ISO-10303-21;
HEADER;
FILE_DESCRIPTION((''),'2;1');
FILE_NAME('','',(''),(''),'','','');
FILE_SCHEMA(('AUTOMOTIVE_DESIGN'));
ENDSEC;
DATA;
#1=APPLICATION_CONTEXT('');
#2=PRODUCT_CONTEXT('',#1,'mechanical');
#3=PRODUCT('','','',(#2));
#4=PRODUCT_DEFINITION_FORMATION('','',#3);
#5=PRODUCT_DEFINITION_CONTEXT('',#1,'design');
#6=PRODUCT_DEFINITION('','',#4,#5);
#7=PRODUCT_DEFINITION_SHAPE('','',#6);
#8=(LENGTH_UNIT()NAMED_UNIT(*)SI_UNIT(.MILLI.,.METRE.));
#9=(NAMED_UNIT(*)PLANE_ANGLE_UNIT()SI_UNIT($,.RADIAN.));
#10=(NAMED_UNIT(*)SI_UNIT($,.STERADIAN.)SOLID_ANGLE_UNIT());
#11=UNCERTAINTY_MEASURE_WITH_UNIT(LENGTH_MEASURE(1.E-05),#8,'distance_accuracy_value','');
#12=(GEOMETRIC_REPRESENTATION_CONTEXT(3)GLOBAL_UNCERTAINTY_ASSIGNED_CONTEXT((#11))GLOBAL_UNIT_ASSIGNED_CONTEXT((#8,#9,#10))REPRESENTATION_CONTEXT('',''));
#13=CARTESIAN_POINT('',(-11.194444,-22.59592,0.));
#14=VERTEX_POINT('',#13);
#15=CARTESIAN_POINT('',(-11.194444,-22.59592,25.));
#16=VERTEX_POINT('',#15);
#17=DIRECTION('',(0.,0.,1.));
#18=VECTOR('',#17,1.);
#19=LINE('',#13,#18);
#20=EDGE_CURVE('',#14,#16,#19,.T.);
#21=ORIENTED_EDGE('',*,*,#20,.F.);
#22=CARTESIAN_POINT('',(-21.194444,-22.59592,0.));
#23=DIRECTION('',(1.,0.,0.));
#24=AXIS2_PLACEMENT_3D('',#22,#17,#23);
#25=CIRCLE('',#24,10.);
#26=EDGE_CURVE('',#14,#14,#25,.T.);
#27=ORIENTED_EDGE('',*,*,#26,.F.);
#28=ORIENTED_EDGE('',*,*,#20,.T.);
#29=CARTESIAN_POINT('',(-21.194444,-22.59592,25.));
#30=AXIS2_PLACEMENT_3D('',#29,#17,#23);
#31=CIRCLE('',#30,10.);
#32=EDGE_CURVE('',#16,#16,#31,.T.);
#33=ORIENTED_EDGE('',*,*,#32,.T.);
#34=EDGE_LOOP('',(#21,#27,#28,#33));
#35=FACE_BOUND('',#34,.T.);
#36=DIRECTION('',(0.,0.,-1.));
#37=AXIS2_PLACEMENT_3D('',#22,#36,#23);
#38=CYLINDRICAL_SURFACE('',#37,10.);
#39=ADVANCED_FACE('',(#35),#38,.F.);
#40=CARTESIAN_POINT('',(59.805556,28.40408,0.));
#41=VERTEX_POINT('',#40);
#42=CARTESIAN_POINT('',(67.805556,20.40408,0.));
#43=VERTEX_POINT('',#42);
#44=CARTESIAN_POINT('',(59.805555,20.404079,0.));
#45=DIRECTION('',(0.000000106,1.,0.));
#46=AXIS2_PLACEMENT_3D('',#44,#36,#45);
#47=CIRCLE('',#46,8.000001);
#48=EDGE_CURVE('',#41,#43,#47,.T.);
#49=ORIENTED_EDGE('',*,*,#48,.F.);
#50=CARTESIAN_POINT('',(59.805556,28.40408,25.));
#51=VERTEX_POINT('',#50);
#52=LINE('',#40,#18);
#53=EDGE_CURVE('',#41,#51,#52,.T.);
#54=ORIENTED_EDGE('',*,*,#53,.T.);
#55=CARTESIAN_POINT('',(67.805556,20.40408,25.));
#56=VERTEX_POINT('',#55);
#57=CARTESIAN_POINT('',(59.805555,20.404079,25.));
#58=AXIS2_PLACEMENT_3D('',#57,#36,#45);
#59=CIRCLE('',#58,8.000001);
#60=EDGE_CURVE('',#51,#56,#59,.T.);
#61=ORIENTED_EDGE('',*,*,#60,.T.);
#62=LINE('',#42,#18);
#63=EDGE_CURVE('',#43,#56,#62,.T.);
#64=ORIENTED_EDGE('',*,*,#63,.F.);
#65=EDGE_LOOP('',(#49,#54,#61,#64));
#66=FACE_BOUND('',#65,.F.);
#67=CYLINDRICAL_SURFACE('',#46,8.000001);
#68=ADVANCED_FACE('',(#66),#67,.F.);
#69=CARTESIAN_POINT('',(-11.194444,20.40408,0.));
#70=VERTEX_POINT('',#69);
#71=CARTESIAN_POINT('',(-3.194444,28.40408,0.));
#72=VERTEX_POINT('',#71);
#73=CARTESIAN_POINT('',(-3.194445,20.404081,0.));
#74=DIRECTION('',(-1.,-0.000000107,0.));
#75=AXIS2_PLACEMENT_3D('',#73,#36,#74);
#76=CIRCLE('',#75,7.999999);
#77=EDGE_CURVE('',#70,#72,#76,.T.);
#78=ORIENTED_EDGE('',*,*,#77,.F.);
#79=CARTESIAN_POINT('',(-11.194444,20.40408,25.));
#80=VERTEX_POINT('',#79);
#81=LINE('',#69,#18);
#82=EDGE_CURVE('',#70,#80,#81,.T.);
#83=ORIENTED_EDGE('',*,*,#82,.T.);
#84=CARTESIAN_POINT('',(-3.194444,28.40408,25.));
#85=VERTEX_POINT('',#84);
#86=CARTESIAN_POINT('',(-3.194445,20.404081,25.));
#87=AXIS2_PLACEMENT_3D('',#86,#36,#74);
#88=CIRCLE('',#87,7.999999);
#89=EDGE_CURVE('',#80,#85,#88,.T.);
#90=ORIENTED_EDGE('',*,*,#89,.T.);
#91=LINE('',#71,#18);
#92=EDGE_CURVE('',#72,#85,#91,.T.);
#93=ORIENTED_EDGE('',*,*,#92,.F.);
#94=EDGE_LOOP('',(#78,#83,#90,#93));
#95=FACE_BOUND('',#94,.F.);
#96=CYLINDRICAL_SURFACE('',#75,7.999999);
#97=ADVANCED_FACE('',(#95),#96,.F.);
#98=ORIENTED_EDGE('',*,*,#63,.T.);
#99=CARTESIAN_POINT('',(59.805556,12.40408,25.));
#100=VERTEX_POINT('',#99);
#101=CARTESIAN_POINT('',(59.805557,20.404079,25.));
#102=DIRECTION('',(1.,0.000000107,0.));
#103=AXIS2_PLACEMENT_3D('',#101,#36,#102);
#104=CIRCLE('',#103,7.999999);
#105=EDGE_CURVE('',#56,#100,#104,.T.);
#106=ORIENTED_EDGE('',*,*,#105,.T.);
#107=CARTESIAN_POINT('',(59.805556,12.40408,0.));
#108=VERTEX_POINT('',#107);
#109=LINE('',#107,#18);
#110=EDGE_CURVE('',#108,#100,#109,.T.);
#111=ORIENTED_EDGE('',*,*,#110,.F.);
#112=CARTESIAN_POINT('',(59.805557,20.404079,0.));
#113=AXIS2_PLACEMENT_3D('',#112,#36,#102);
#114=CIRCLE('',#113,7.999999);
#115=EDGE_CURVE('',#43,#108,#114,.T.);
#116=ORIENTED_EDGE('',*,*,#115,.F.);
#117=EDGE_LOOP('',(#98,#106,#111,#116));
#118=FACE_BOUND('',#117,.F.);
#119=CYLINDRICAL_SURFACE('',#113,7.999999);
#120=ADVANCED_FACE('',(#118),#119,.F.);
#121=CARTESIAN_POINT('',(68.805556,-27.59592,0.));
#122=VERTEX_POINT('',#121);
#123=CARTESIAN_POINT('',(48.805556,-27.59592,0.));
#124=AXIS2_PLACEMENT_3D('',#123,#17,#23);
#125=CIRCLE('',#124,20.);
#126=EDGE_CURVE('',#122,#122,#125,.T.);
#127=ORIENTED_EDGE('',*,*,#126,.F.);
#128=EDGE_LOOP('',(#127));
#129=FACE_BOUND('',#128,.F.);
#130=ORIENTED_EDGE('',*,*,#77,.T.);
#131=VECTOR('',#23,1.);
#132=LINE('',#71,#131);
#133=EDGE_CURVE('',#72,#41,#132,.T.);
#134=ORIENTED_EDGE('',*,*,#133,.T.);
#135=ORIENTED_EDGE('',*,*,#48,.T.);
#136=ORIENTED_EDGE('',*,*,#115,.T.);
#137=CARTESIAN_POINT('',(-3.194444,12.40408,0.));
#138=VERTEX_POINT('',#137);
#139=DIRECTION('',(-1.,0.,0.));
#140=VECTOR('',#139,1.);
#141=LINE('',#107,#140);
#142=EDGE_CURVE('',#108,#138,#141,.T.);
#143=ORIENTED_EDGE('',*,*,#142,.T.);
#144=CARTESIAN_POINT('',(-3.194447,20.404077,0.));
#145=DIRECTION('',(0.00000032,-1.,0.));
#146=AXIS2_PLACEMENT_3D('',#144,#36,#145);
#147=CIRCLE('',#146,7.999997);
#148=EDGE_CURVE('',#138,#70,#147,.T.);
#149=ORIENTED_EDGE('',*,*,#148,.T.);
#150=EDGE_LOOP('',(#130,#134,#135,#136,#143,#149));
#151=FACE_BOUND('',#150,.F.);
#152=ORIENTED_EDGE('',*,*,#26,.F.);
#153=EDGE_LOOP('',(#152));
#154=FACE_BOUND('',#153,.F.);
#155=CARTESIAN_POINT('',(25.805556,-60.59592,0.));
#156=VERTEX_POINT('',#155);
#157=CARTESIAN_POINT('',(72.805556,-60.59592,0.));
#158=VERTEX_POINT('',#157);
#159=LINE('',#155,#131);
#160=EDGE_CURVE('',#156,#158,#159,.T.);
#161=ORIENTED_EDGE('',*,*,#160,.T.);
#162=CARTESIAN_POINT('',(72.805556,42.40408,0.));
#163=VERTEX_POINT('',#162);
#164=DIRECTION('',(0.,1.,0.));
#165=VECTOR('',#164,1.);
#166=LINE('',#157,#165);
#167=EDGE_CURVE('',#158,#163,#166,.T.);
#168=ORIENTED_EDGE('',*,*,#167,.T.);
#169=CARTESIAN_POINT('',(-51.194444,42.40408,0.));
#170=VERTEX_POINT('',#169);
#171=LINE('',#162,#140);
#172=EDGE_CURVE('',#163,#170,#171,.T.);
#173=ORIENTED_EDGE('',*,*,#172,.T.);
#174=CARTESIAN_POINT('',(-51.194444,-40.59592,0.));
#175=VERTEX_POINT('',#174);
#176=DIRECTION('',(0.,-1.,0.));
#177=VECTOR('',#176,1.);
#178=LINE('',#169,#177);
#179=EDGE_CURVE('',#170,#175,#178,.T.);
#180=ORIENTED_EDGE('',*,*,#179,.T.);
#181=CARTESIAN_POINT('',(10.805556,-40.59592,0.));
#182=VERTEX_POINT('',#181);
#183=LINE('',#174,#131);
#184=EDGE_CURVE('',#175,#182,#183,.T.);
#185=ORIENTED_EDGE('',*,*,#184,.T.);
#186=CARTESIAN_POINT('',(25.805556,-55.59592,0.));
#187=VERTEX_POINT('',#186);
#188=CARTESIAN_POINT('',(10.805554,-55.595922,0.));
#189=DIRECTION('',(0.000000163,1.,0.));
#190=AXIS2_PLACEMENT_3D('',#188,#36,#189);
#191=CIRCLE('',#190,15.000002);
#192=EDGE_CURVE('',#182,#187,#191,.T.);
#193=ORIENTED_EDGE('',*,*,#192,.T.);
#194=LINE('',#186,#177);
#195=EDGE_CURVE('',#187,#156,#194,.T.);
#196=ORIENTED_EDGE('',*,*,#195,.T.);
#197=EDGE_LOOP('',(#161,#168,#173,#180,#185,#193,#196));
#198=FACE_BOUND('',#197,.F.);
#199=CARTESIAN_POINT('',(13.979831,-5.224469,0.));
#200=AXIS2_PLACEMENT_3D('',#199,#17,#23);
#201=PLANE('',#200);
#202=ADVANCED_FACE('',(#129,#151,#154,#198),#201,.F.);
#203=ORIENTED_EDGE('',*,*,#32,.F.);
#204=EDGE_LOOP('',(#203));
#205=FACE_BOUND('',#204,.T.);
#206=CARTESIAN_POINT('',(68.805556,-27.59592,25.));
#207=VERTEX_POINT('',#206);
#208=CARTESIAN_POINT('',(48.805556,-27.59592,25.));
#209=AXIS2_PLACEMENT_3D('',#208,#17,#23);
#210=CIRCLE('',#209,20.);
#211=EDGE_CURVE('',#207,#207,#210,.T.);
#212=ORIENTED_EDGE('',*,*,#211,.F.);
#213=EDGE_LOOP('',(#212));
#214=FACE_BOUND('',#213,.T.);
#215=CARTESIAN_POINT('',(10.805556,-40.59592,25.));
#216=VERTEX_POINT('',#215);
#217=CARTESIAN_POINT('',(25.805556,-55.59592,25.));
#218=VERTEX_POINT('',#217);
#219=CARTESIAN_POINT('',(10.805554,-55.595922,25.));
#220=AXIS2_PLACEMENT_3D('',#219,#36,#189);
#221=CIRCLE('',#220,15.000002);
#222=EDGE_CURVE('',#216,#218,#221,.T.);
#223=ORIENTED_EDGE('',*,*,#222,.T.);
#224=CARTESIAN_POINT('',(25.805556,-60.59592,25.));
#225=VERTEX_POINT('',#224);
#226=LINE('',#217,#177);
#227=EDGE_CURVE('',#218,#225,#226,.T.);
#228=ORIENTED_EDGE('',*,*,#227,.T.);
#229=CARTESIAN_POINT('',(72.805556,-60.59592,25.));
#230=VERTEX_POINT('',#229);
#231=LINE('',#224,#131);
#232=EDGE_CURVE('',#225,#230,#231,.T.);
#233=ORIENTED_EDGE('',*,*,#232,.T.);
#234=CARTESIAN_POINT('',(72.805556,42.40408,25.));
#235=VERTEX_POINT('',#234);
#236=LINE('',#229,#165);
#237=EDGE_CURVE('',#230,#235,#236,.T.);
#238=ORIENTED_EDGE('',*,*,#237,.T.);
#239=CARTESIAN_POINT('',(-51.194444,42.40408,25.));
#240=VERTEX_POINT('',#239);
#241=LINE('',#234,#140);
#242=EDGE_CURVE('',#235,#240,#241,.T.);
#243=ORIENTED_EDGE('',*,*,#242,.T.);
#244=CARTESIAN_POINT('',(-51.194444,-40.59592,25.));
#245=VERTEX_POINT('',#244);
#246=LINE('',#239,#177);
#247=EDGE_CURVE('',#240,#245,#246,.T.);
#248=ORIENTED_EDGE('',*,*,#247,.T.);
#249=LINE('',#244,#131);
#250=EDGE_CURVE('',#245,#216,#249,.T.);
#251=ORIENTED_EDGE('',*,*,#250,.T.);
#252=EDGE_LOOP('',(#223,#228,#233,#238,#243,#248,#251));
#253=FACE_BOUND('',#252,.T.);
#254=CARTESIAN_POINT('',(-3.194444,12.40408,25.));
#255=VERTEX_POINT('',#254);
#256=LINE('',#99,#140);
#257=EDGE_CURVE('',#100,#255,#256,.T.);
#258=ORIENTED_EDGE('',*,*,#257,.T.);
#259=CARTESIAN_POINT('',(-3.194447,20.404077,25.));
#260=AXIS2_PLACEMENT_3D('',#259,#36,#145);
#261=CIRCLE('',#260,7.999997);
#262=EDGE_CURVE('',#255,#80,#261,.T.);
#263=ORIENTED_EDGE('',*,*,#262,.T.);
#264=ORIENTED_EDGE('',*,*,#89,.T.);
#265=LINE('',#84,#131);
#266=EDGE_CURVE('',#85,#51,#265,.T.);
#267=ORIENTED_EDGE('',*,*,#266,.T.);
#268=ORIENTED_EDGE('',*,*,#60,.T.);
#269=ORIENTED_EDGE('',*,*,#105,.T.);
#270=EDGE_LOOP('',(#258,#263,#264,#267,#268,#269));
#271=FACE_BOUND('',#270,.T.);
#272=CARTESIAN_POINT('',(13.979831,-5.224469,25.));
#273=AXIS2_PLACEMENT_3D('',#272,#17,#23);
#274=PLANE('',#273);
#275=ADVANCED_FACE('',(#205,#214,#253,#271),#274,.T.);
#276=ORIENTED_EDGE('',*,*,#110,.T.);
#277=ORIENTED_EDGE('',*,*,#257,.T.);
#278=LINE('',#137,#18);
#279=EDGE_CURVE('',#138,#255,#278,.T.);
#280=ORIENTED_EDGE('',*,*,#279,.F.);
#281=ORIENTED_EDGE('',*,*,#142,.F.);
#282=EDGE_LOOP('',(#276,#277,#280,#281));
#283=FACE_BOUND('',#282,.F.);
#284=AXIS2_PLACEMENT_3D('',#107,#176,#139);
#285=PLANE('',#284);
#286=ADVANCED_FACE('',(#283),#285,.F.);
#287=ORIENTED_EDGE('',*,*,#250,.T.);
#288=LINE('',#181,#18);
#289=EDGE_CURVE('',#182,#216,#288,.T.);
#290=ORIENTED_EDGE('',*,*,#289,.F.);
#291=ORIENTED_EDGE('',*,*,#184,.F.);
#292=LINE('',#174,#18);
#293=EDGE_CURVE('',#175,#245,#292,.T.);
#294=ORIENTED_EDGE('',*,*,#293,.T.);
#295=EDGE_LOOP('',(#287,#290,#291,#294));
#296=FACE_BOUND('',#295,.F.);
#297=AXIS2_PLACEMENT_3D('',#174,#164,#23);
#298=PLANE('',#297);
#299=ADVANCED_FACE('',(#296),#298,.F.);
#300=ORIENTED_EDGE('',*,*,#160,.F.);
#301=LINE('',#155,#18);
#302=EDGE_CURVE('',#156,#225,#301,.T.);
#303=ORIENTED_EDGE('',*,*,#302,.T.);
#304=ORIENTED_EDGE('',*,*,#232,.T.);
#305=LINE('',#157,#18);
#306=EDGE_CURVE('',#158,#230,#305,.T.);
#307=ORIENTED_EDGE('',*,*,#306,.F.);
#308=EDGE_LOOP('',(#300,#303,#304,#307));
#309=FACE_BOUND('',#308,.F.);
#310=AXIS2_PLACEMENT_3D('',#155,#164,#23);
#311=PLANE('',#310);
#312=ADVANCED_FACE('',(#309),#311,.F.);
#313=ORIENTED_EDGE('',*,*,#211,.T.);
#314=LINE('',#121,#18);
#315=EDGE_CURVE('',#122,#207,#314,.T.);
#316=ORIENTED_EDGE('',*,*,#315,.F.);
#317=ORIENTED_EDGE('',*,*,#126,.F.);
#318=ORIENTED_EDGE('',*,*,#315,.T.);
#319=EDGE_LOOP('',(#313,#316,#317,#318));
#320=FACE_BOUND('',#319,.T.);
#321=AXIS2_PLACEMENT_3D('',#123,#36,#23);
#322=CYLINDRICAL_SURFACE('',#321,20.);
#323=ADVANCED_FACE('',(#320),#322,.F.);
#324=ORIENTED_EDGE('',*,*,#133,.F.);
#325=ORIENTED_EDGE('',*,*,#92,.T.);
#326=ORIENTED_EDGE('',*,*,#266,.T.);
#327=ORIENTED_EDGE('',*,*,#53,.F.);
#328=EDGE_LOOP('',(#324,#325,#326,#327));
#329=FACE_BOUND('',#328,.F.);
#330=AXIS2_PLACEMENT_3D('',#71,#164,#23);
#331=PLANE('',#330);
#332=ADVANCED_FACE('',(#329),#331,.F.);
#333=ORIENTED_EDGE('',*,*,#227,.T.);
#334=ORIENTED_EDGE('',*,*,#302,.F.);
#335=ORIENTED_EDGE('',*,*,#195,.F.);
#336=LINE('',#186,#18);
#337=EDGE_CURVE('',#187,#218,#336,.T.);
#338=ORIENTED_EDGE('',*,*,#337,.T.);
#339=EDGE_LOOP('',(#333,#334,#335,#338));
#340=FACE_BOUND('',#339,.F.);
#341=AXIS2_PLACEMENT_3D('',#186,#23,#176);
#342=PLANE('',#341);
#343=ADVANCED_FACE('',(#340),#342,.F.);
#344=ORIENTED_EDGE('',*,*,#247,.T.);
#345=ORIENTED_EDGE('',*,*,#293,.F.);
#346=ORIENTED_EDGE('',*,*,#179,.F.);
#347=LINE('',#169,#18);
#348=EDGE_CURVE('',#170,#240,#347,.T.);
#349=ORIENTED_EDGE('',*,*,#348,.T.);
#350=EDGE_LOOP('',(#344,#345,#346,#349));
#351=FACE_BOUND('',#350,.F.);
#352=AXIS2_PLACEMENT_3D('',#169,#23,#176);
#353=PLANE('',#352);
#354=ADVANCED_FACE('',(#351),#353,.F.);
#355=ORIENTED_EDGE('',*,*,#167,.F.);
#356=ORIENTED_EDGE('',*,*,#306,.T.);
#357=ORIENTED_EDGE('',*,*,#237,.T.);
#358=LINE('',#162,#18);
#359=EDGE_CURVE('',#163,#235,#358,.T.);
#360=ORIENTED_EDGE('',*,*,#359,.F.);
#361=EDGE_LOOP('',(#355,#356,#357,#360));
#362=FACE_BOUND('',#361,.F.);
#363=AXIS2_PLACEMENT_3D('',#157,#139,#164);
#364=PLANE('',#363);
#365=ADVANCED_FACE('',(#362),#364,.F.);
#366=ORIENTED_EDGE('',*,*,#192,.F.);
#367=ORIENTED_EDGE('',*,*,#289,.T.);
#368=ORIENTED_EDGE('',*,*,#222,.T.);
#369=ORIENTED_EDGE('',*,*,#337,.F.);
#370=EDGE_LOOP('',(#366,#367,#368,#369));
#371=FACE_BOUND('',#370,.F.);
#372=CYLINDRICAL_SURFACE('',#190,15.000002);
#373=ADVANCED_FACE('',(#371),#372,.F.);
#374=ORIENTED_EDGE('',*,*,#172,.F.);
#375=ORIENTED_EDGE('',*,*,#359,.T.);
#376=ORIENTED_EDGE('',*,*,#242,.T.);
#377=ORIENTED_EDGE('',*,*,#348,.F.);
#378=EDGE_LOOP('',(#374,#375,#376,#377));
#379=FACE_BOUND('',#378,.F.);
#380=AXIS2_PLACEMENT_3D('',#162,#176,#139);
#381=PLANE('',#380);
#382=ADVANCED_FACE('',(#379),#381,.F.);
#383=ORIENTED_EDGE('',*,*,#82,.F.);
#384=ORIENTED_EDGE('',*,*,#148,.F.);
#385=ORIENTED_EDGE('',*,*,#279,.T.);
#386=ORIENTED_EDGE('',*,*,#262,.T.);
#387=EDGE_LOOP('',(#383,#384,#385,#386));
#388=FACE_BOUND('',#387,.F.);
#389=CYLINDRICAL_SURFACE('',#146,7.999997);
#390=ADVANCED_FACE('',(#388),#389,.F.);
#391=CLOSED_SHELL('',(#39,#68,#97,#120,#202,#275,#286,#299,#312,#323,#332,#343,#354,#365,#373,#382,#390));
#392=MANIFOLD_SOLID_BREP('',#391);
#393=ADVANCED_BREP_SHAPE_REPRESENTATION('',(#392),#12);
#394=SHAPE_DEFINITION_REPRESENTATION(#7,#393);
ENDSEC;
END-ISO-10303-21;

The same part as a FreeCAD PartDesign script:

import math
import FreeCAD as App
import Part
import Sketcher

V = App.Vector
Q = App.Units.Quantity

doc = App.newDocument("Part")
body = doc.addObject("PartDesign::Body", "Body")

# Sketch on XY plane
sketch1 = body.newObject("Sketcher::SketchObject", "Sketch")
sketch1.AttachmentSupport = (doc.getObject("XY_Plane"), [""])
sketch1.MapMode = "FlatFace"
sketch1.addGeometry([
    Part.LineSegment(V(73, 42, 0), V(-51, 42, 0)),  # 0
    Part.LineSegment(V(-51, 42, 0), V(-51, -41, 0)),  # 1
    Part.LineSegment(V(-51, -41, 0), V(11, -41, 0)),  # 2
    Part.ArcOfCircle(Part.Circle(V(11, -56, 0), V(0, 0, 1), 15), math.radians(0), math.radians(90)),  # 3
    Part.LineSegment(V(26, -56, 0), V(26, -61, 0)),  # 4
    Part.LineSegment(V(26, -61, 0), V(73, -61, 0)),  # 5
    Part.LineSegment(V(73, -61, 0), V(73, 42, 0)),  # 6
    Part.Circle(V(-21, -23, 0), V(0, 0, 1), 10),  # 7
    Part.Circle(V(49, -28, 0), V(0, 0, 1), 20),  # 8
    Part.ArcOfCircle(Part.Circle(V(-3, 20, 0), V(0, 0, 1), 8), math.radians(90), math.radians(180)),  # 9
    Part.LineSegment(V(-3, 28, 0), V(60, 28, 0)),  # 10
    Part.ArcOfCircle(Part.Circle(V(60, 20, 0), V(0, 0, 1), 8), math.radians(0), math.radians(90)),  # 11
    Part.ArcOfCircle(Part.Circle(V(60, 20, 0), V(0, 0, 1), 8), math.radians(-90), math.radians(0)),  # 12
    Part.LineSegment(V(60, 12, 0), V(-3, 12, 0)),  # 13
    Part.ArcOfCircle(Part.Circle(V(-3, 20, 0), V(0, 0, 1), 8), math.radians(180), math.radians(270)),  # 14
], False)
sketch1.addConstraint([
    Sketcher.Constraint("Coincident", 0, 2, 1, 1),
    Sketcher.Constraint("Coincident", 1, 2, 2, 1),
    Sketcher.Constraint("Tangent", 2, 2, 3, 2),
    Sketcher.Constraint("Tangent", 3, 1, 4, 1),
    Sketcher.Constraint("Coincident", 4, 2, 5, 1),
    Sketcher.Constraint("Coincident", 5, 2, 6, 1),
    Sketcher.Constraint("Coincident", 6, 2, 0, 1),
    Sketcher.Constraint("Tangent", 9, 1, 10, 1),
    Sketcher.Constraint("Tangent", 10, 2, 11, 2),
    Sketcher.Constraint("Tangent", 11, 1, 12, 2),
    Sketcher.Constraint("Tangent", 12, 1, 13, 1),
    Sketcher.Constraint("Tangent", 13, 2, 14, 2),
    Sketcher.Constraint("Tangent", 14, 1, 9, 2),
    Sketcher.Constraint("Horizontal", 0),
    Sketcher.Constraint("Vertical", 1),
    Sketcher.Constraint("Horizontal", 2),
    Sketcher.Constraint("Vertical", 4),
    Sketcher.Constraint("Horizontal", 5),
    Sketcher.Constraint("Vertical", 6),
    Sketcher.Constraint("Horizontal", 10),
    Sketcher.Constraint("Horizontal", 13),
    Sketcher.Constraint("Equal", 9, 11),
    Sketcher.Constraint("Equal", 11, 12),
    Sketcher.Constraint("Horizontal", 12, 3, 11, 1),
    Sketcher.Constraint("Horizontal", 11, 1, 14, 1),
    Sketcher.Constraint("Diameter", 7, Q("20 mm")),
    Sketcher.Constraint("Diameter", 8, Q("40 mm")),
    Sketcher.Constraint("Radius", 9, Q("7.999999 mm")),
    Sketcher.Constraint("DistanceX", 0, 2, 0, 1, Q("124 mm")),
    Sketcher.Constraint("DistanceX", 2, 1, 2, 2, Q("62 mm")),
    Sketcher.Constraint("DistanceX", 5, 1, 5, 2, Q("47 mm")),
    Sketcher.Constraint("DistanceX", 10, 1, 10, 2, Q("63 mm")),
    Sketcher.Constraint("DistanceY", 1, 2, 1, 1, Q("83 mm")),
    Sketcher.Constraint("DistanceY", 4, 2, 4, 1, Q("5 mm")),
    Sketcher.Constraint("DistanceX", 7, 3, 8, 3, Q("70 mm")),
    Sketcher.Constraint("DistanceY", 8, 3, 7, 3, Q("5 mm")),
    Sketcher.Constraint("DistanceX", 7, 3, 9, 3, Q("17.999999 mm")),
    Sketcher.Constraint("DistanceY", 7, 3, 9, 3, Q("43.000001 mm")),
    Sketcher.Constraint("DistanceX", 9, 3, 3, 3, Q("13.999998 mm")),
    Sketcher.Constraint("DistanceY", 3, 3, 11, 3, Q("76.000002 mm")),
    Sketcher.Constraint("DistanceY", 7, 3, -1, 1, Q("22.59592 mm")),
    Sketcher.Constraint("DistanceX", -1, 1, 3, 3, Q("10.805554 mm")),
])
pad1 = body.newObject("PartDesign::Pad", "Pad")
pad1.Profile = sketch1
pad1.Length = 25

doc.recompute()
